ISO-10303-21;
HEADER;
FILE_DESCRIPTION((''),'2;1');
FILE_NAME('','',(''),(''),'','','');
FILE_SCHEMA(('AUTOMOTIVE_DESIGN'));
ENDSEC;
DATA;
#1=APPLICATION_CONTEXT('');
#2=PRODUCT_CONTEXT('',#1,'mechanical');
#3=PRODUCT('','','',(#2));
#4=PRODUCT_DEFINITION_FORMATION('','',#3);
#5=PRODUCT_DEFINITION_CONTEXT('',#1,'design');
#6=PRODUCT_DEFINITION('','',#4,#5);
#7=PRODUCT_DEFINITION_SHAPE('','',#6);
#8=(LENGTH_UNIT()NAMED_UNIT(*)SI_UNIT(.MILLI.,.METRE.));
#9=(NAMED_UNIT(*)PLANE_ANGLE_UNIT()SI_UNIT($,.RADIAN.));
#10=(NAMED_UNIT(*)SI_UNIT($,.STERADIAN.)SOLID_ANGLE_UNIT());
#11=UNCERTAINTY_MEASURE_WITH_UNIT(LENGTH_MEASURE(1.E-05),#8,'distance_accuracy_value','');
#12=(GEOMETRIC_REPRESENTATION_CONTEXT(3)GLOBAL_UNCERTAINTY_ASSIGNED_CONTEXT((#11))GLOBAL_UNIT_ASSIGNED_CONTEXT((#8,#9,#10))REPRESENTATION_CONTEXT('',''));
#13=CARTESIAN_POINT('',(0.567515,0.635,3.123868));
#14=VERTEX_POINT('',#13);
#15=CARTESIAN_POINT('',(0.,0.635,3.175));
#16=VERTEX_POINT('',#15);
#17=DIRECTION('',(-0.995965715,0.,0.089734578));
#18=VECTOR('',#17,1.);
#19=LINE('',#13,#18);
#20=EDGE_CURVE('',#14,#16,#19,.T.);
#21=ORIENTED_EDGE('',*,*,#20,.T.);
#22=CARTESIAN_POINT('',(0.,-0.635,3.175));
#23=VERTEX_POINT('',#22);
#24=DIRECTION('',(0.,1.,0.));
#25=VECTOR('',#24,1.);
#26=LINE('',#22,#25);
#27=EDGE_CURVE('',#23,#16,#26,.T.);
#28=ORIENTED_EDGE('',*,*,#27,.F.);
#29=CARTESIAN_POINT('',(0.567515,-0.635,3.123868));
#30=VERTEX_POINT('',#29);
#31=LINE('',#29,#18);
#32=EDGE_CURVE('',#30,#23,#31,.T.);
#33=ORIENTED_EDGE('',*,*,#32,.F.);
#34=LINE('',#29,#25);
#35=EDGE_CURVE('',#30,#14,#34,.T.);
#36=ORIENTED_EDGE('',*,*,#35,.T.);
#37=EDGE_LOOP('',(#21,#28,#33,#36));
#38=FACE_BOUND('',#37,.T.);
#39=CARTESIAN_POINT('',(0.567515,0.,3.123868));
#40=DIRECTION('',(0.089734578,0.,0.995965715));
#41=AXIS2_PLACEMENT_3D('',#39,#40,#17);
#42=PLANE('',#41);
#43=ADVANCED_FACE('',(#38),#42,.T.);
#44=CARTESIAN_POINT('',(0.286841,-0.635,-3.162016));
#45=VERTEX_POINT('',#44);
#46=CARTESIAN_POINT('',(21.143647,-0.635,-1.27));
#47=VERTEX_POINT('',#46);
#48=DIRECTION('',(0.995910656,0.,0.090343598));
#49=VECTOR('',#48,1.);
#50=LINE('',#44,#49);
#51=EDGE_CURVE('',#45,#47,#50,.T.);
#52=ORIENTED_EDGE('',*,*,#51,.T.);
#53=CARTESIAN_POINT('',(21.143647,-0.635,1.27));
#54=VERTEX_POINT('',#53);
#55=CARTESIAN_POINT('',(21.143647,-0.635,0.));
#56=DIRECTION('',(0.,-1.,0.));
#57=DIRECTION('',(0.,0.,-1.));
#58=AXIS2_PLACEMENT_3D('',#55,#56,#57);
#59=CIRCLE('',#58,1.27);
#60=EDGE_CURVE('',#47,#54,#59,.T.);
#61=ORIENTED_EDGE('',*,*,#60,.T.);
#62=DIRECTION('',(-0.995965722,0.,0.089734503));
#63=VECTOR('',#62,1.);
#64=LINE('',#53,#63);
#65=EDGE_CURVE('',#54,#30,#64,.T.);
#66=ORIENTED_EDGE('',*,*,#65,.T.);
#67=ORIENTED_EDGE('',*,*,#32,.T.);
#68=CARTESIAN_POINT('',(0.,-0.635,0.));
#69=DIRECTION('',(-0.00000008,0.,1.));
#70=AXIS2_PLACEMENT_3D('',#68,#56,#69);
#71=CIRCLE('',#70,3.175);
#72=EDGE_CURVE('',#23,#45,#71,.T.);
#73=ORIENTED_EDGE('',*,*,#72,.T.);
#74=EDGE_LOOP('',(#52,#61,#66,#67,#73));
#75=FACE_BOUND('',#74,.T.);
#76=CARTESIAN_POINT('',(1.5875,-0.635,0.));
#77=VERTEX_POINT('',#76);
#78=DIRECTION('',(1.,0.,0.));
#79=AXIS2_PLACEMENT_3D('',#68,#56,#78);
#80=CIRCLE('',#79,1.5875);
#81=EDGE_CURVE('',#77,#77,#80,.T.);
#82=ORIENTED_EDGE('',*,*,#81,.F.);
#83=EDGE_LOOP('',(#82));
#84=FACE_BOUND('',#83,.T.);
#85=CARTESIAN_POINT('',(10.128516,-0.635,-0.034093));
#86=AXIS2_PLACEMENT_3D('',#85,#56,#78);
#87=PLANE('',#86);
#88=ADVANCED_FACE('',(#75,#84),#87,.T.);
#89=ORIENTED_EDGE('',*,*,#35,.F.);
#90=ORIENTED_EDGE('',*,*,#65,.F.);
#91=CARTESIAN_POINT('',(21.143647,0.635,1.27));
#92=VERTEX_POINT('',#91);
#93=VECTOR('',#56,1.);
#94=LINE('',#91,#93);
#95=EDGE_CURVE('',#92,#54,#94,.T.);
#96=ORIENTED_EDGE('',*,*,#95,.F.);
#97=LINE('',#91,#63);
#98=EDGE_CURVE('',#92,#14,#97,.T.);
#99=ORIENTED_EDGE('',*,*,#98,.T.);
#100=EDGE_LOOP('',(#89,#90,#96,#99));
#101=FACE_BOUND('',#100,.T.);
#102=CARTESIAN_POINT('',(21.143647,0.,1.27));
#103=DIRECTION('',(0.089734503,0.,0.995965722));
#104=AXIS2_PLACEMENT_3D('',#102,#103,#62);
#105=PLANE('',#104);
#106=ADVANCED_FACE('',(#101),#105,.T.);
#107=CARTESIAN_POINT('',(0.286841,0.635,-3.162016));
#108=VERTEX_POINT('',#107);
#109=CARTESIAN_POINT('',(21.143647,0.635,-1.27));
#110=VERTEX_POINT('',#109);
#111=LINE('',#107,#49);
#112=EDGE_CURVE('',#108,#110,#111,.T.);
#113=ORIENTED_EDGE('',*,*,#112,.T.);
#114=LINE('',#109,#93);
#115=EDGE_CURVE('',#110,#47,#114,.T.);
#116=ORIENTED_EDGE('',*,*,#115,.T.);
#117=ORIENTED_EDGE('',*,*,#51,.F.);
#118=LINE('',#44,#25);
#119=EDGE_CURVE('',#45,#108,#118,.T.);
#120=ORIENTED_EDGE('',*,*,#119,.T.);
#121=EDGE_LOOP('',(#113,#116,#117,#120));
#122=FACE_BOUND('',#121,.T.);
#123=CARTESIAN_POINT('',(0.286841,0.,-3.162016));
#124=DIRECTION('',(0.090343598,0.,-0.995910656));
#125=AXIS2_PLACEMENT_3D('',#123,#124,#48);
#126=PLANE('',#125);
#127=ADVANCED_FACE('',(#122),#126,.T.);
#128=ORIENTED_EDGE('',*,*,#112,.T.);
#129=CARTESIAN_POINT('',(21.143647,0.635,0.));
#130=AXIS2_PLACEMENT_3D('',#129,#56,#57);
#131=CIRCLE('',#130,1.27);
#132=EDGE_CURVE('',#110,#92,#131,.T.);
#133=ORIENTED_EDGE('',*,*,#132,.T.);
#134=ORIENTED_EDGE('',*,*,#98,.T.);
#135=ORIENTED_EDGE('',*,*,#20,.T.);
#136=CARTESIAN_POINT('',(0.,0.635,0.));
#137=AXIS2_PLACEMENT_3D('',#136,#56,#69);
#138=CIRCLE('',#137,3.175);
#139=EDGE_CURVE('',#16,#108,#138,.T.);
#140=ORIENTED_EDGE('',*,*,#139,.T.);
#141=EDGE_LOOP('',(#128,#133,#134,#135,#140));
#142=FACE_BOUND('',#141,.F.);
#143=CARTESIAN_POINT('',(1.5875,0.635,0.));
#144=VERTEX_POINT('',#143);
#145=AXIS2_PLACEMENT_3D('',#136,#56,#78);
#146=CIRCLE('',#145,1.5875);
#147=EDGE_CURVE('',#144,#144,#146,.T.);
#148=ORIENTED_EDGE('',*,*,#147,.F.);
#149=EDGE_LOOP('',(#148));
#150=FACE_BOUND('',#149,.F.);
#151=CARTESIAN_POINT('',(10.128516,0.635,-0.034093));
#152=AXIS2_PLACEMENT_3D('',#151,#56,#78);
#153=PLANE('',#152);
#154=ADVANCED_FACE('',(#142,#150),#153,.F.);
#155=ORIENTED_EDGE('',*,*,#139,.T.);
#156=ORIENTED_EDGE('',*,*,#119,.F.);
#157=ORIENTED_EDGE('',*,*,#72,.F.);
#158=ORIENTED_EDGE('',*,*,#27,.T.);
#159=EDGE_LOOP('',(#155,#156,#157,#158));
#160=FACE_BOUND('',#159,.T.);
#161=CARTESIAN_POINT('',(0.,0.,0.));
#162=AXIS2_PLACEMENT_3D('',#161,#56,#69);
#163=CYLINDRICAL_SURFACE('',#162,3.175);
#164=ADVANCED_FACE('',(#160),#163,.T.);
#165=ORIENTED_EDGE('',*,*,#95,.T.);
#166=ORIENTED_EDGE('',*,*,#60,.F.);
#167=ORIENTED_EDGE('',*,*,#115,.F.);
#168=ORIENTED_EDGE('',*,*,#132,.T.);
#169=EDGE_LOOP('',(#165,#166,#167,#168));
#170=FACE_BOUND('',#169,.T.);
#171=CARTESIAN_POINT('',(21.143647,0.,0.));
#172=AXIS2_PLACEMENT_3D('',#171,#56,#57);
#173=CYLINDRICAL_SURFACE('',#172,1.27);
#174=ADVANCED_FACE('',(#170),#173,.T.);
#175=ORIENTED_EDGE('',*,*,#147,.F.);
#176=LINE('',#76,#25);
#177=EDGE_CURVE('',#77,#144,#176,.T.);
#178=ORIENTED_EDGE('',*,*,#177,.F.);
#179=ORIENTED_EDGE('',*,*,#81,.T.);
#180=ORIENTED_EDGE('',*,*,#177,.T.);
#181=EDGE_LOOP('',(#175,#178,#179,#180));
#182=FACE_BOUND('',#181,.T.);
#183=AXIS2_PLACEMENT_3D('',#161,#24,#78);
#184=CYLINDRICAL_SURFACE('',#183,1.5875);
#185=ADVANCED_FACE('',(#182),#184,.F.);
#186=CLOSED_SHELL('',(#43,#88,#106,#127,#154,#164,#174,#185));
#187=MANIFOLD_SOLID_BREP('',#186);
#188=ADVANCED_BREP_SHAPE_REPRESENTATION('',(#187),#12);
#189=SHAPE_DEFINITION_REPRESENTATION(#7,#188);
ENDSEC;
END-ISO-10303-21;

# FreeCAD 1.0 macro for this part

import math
import FreeCAD as App
import Part
import Sketcher
from FreeCAD import Vector
Q = App.Units.Quantity

doc = App.newDocument("Part")
body = doc.addObject("PartDesign::Body", "Body")

# Sketch on XZ plane
sketch1 = body.newObject("Sketcher::SketchObject", "Sketch")
sketch1.AttachmentSupport = (doc.getObject("XZ_Plane"), [""])
sketch1.MapMode = "FlatFace"
sketch1.addGeometry([
    Part.LineSegment(Vector(0.3, -3.2, 0), Vector(21.1, -1.3, 0)),  # 0
    Part.ArcOfCircle(Part.Circle(Vector(21.1, 0, 0), Vector(0, 0, 1), 1.3), math.radians(-90), math.radians(90)),  # 1
    Part.LineSegment(Vector(21.1, 1.3, 0), Vector(0.6, 3.1, 0)),  # 2
    Part.LineSegment(Vector(0.6, 3.1, 0), Vector(0, 3.2, 0)),  # 3
    Part.ArcOfCircle(Part.Circle(Vector(0, 0, 0), Vector(0, 0, 1), 3.2), math.radians(90), math.radians(275)),  # 4
    Part.Circle(Vector(0, 0, 0), Vector(0, 0, 1), 1.6),  # 5
], False)
sketch1.addConstraint([
    Sketcher.Constraint("Coincident", 0, 2, 1, 1),
    Sketcher.Constraint("Coincident", 1, 2, 2, 1),
    Sketcher.Constraint("Coincident", 2, 2, 3, 1),
    Sketcher.Constraint("Coincident", 3, 2, 4, 1),
    Sketcher.Constraint("Tangent", 4, 2, 0, 1),
    Sketcher.Constraint("Coincident", 4, 3, -1, 1),
    Sketcher.Constraint("Coincident", 5, 3, -1, 1),
    Sketcher.Constraint("Symmetric", 0, 2, 1, 2, -1),
    Sketcher.Constraint("PointOnObject", 3, 2, -2),
    Sketcher.Constraint("Parallel", 2, 3),
    Sketcher.Constraint("Vertical", 1, 3, 0, 2),
    Sketcher.Constraint("Radius", 1, Q("0.05 in")),
    Sketcher.Constraint("Diameter", 5, Q("0.125 in")),
    Sketcher.Constraint("Radius", 4, Q("0.125 in")),
    Sketcher.Constraint("Distance", 2, 20.659478),
    Sketcher.Constraint("DistanceY", 2, 2, 3, 2, 0.051132),
])
pad1 = body.newObject("PartDesign::Pad", "Pad")
pad1.Profile = sketch1
pad1.Length = Q("0.05 in")
pad1.Midplane = True

doc.recompute()
